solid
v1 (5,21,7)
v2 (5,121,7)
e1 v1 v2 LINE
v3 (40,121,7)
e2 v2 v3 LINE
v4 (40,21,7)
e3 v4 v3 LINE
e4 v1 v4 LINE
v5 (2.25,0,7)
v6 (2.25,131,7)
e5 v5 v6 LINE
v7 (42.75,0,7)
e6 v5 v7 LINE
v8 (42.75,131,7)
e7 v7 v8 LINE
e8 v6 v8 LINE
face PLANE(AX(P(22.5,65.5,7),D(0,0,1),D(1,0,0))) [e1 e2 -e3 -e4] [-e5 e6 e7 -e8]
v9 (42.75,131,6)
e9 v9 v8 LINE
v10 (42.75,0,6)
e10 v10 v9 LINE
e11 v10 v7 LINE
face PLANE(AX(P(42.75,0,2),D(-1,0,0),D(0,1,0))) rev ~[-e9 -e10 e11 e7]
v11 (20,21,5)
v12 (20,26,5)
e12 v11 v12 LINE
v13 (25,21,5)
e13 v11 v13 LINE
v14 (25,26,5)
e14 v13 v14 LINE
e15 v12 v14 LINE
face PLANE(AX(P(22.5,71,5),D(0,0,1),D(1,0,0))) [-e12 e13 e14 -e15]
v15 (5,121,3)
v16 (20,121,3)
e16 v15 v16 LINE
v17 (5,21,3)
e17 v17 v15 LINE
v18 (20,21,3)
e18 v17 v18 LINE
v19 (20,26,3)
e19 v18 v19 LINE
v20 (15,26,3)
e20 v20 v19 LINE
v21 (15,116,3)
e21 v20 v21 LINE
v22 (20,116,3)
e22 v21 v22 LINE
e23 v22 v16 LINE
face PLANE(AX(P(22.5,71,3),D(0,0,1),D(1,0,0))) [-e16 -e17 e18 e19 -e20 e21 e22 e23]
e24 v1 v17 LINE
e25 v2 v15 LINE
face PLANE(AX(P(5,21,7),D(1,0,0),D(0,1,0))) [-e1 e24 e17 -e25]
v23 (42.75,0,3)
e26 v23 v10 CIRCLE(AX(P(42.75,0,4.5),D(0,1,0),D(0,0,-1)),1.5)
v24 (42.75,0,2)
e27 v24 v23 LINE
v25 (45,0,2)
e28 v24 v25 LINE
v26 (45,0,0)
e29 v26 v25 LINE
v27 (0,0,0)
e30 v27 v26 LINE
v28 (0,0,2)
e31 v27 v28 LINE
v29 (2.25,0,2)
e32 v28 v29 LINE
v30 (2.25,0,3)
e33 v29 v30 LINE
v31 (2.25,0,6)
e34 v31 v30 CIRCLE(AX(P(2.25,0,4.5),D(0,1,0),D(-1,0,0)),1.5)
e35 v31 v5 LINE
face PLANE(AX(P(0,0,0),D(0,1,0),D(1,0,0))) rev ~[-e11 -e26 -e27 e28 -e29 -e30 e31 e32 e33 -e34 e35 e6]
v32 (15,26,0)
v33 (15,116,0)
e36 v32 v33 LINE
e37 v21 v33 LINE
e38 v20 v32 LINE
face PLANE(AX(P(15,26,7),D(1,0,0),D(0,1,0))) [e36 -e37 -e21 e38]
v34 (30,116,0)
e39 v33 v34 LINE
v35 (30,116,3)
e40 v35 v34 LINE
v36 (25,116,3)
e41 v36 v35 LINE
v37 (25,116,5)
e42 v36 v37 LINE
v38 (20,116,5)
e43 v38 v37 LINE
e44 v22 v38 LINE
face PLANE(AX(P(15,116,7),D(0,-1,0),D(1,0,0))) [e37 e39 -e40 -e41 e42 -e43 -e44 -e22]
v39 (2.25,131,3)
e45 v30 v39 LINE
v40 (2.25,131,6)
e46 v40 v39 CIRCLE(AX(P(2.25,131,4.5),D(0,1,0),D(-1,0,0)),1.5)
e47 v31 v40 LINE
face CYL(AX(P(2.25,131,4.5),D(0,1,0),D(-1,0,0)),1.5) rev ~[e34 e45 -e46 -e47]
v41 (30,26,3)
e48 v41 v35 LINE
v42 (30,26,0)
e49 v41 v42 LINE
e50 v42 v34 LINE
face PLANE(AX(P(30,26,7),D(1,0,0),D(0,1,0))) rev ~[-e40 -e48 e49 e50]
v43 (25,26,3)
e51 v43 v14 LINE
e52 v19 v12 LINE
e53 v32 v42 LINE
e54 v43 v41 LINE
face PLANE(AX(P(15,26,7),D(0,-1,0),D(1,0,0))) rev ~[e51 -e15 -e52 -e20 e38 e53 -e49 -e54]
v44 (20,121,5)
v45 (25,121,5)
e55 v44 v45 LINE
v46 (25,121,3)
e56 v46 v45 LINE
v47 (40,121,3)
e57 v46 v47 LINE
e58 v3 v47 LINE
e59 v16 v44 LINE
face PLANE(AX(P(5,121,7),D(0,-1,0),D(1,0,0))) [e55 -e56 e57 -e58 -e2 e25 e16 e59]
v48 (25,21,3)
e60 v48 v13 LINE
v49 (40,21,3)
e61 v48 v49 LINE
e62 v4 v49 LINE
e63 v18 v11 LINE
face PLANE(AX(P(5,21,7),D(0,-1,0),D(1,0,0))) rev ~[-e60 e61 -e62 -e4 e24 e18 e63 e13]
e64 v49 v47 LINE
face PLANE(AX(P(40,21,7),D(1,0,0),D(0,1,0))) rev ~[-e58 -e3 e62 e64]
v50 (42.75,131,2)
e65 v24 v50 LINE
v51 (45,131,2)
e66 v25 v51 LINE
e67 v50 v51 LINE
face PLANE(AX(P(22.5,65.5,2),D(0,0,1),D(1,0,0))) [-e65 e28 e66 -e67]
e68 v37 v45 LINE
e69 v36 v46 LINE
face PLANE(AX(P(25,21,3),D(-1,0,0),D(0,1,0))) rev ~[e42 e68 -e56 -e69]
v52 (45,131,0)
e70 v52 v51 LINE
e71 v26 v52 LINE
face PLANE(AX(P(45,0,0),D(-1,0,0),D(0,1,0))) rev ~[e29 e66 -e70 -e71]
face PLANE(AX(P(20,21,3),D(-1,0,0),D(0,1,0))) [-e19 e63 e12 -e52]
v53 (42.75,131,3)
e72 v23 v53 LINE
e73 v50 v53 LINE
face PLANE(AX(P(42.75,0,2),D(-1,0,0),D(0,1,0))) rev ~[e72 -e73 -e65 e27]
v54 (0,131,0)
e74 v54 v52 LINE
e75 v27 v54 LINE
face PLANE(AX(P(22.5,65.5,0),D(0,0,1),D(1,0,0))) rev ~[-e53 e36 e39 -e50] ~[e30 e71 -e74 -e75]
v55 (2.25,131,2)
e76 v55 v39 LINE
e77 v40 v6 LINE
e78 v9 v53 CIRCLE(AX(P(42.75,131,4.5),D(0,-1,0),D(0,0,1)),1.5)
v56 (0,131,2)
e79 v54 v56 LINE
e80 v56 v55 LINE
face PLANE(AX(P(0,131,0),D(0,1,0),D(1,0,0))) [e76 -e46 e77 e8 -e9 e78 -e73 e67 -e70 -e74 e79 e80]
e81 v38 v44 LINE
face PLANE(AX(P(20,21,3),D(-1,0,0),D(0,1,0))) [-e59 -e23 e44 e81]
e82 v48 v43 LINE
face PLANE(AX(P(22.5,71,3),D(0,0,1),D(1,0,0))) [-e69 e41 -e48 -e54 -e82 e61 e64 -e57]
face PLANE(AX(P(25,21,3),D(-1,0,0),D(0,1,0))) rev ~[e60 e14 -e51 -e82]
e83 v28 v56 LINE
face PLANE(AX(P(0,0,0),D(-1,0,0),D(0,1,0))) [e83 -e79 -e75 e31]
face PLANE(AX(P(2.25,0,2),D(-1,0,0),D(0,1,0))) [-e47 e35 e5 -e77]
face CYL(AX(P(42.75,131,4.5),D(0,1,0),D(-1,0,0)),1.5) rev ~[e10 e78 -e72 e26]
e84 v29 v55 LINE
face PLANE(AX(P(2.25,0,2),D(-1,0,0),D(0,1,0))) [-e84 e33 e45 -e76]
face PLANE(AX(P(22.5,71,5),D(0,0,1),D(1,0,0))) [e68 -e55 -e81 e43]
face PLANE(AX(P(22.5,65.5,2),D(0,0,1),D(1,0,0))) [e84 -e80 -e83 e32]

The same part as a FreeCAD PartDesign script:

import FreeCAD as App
import Part
import Sketcher


def add_polygon(sketch, points):
    """Adds a closed chain of lines whose ends are joined by coincident constraints."""
    first, n = sketch.GeometryCount, len(points)
    for a, b in zip(points, points[1:] + points[:1]):
        sketch.addGeometry(Part.LineSegment(App.Vector(*a, 0), App.Vector(*b, 0)), False)
    for i in range(n):
        sketch.addConstraint(Sketcher.Constraint("Coincident", first + i, 2, first + (i + 1) % n, 1))

doc = App.newDocument("Part")
body = doc.addObject("PartDesign::Body", "Body")

# Sketch on XY plane
sketch1 = body.newObject("Sketcher::SketchObject", "Sketch")
sketch1.AttachmentSupport = (doc.getObject("XY_Plane"), [""])
sketch1.MapMode = "FlatFace"
add_polygon(sketch1, [(0, 131), (0, 0), (45, 0), (45, 131)])  # lines 0-3
sketch1.addConstraint(Sketcher.Constraint("Vertical", 0))
sketch1.addConstraint(Sketcher.Constraint("Horizontal", 1))
sketch1.addConstraint(Sketcher.Constraint("Vertical", 2))
sketch1.addConstraint(Sketcher.Constraint("Horizontal", 3))
sketch1.addConstraint(Sketcher.Constraint("Coincident", 0, 2, -1, 1))
sketch1.addConstraint(Sketcher.Constraint("DistanceX", 1, 1, 1, 2, 45.0))
sketch1.addConstraint(Sketcher.Constraint("DistanceY", 0, 2, 0, 1, 131.0))
pad1 = body.newObject("PartDesign::Pad", "Pad")
pad1.Profile = sketch1
pad1.Length = 2

# Sketch on XY plane
sketch2 = body.newObject("Sketcher::SketchObject", "Sketch001")
sketch2.AttachmentSupport = (doc.getObject("XY_Plane"), [""])
sketch2.MapMode = "FlatFace"
sketch2.AttachmentOffset = App.Placement(App.Vector(0, 0, 2), App.Rotation())
add_polygon(sketch2, [(2, 131), (2, 0), (43, 0), (43, 131)])  # lines 0-3
sketch2.addConstraint(Sketcher.Constraint("Vertical", 0))
sketch2.addConstraint(Sketcher.Constraint("Horizontal", 1))
sketch2.addConstraint(Sketcher.Constraint("Vertical", 2))
sketch2.addConstraint(Sketcher.Constraint("Horizontal", 3))
sketch2.addConstraint(Sketcher.Constraint("PointOnObject", 0, 2, -1))
sketch2.addConstraint(Sketcher.Constraint("DistanceY", 0, 2, 0, 1, 131.0))
sketch2.addConstraint(Sketcher.Constraint("DistanceX", 1, 1, 1, 2, 40.5))
sketch2.addConstraint(Sketcher.Constraint("DistanceX", -1, 1, 0, 2, 2.25))
pad2 = body.newObject("PartDesign::Pad", "Pad001")
pad2.Profile = sketch2
pad2.Length = 5

# Sketch on XY plane
sketch3 = body.newObject("Sketcher::SketchObject", "Sketch002")
sketch3.AttachmentSupport = (doc.getObject("XY_Plane"), [""])
sketch3.MapMode = "FlatFace"
sketch3.AttachmentOffset = App.Placement(App.Vector(0, 0, 7), App.Rotation())
add_polygon(sketch3, [(5, 121), (5, 21), (40, 21), (40, 121)])  # lines 0-3
sketch3.addConstraint(Sketcher.Constraint("Vertical", 0))
sketch3.addConstraint(Sketcher.Constraint("Horizontal", 1))
sketch3.addConstraint(Sketcher.Constraint("Vertical", 2))
sketch3.addConstraint(Sketcher.Constraint("Horizontal", 3))
sketch3.addConstraint(Sketcher.Constraint("DistanceX", 1, 1, 1, 2, 35.0))
sketch3.addConstraint(Sketcher.Constraint("DistanceY", 0, 2, 0, 1, 100.0))
sketch3.addConstraint(Sketcher.Constraint("DistanceX", -1, 1, 0, 2, 5.0))
sketch3.addConstraint(Sketcher.Constraint("DistanceY", -1, 1, 0, 2, 21.0))
pocket1 = body.newObject("PartDesign::Pocket", "Pocket")
pocket1.Profile = sketch3
pocket1.Length = 4

# Sketch on XY plane
sketch4 = body.newObject("Sketcher::SketchObject", "Sketch003")
sketch4.AttachmentSupport = (doc.getObject("XY_Plane"), [""])
sketch4.MapMode = "FlatFace"
sketch4.AttachmentOffset = App.Placement(App.Vector(0, 0, 3), App.Rotation())
add_polygon(sketch4, [(20, 121), (20, 21), (25, 21), (25, 121)])  # lines 0-3
sketch4.addConstraint(Sketcher.Constraint("Vertical", 0))
sketch4.addConstraint(Sketcher.Constraint("Horizontal", 1))
sketch4.addConstraint(Sketcher.Constraint("Vertical", 2))
sketch4.addConstraint(Sketcher.Constraint("Horizontal", 3))
sketch4.addConstraint(Sketcher.Constraint("DistanceX", 1, 1, 1, 2, 5.0))
sketch4.addConstraint(Sketcher.Constraint("DistanceY", 0, 2, 0, 1, 100.0))
sketch4.addConstraint(Sketcher.Constraint("DistanceX", -1, 1, 0, 2, 20.0))
sketch4.addConstraint(Sketcher.Constraint("DistanceY", -1, 1, 0, 2, 21.0))
pad3 = body.newObject("PartDesign::Pad", "Pad002")
pad3.Profile = sketch4
pad3.Length = 2

# Sketch on XY plane
sketch5 = body.newObject("Sketcher::SketchObject", "Sketch004")
sketch5.AttachmentSupport = (doc.getObject("XY_Plane"), [""])
sketch5.MapMode = "FlatFace"
sketch5.AttachmentOffset = App.Placement(App.Vector(0, 0, 7), App.Rotation())
add_polygon(sketch5, [(15, 116), (15, 26), (30, 26), (30, 116)])  # lines 0-3
sketch5.addConstraint(Sketcher.Constraint("Vertical", 0))
sketch5.addConstraint(Sketcher.Constraint("Horizontal", 1))
sketch5.addConstraint(Sketcher.Constraint("Vertical", 2))
sketch5.addConstraint(Sketcher.Constraint("Horizontal", 3))
sketch5.addConstraint(Sketcher.Constraint("DistanceX", 1, 1, 1, 2, 15.0))
sketch5.addConstraint(Sketcher.Constraint("DistanceY", 0, 2, 0, 1, 90.0))
sketch5.addConstraint(Sketcher.Constraint("DistanceX", -1, 1, 0, 2, 15.0))
sketch5.addConstraint(Sketcher.Constraint("DistanceY", -1, 1, 0, 2, 26.0))
pocket2 = body.newObject("PartDesign::Pocket", "Pocket001")
pocket2.Profile = sketch5
pocket2.Type = "ThroughAll"

# Sketch on XZ plane
sketch6 = body.newObject("Sketcher::SketchObject", "Sketch005")
sketch6.AttachmentSupport = (doc.getObject("XZ_Plane"), [""])
sketch6.MapMode = "FlatFace"
sketch6.AttachmentOffset = App.Placement(App.Vector(0, 0, -131), App.Rotation())
sketch6.addGeometry(Part.Circle(App.Vector(42.8, 4.5, 0), App.Vector(0, 0, 1), 1.5), False)
sketch6.addGeometry(Part.Circle(App.Vector(2.2, 4.5, 0), App.Vector(0, 0, 1), 1.5), False)
sketch6.addConstraint(Sketcher.Constraint("Equal", 0, 1))
sketch6.addConstraint(Sketcher.Constraint("Horizontal", 0, 3, 1, 3))
sketch6.addConstraint(Sketcher.Constraint("Diameter", 0, 3.0))
sketch6.addConstraint(Sketcher.Constraint("DistanceY", -1, 1, 0, 3, 4.5))
sketch6.addConstraint(Sketcher.Constraint("DistanceX", 1, 3, 0, 3, 40.5))
sketch6.addConstraint(Sketcher.Constraint("DistanceX", -1, 1, 0, 3, 42.75))
pocket3 = body.newObject("PartDesign::Pocket", "Pocket002")
pocket3.Profile = sketch6
pocket3.Type = "ThroughAll"
pocket3.Reversed = True

doc.recompute()
